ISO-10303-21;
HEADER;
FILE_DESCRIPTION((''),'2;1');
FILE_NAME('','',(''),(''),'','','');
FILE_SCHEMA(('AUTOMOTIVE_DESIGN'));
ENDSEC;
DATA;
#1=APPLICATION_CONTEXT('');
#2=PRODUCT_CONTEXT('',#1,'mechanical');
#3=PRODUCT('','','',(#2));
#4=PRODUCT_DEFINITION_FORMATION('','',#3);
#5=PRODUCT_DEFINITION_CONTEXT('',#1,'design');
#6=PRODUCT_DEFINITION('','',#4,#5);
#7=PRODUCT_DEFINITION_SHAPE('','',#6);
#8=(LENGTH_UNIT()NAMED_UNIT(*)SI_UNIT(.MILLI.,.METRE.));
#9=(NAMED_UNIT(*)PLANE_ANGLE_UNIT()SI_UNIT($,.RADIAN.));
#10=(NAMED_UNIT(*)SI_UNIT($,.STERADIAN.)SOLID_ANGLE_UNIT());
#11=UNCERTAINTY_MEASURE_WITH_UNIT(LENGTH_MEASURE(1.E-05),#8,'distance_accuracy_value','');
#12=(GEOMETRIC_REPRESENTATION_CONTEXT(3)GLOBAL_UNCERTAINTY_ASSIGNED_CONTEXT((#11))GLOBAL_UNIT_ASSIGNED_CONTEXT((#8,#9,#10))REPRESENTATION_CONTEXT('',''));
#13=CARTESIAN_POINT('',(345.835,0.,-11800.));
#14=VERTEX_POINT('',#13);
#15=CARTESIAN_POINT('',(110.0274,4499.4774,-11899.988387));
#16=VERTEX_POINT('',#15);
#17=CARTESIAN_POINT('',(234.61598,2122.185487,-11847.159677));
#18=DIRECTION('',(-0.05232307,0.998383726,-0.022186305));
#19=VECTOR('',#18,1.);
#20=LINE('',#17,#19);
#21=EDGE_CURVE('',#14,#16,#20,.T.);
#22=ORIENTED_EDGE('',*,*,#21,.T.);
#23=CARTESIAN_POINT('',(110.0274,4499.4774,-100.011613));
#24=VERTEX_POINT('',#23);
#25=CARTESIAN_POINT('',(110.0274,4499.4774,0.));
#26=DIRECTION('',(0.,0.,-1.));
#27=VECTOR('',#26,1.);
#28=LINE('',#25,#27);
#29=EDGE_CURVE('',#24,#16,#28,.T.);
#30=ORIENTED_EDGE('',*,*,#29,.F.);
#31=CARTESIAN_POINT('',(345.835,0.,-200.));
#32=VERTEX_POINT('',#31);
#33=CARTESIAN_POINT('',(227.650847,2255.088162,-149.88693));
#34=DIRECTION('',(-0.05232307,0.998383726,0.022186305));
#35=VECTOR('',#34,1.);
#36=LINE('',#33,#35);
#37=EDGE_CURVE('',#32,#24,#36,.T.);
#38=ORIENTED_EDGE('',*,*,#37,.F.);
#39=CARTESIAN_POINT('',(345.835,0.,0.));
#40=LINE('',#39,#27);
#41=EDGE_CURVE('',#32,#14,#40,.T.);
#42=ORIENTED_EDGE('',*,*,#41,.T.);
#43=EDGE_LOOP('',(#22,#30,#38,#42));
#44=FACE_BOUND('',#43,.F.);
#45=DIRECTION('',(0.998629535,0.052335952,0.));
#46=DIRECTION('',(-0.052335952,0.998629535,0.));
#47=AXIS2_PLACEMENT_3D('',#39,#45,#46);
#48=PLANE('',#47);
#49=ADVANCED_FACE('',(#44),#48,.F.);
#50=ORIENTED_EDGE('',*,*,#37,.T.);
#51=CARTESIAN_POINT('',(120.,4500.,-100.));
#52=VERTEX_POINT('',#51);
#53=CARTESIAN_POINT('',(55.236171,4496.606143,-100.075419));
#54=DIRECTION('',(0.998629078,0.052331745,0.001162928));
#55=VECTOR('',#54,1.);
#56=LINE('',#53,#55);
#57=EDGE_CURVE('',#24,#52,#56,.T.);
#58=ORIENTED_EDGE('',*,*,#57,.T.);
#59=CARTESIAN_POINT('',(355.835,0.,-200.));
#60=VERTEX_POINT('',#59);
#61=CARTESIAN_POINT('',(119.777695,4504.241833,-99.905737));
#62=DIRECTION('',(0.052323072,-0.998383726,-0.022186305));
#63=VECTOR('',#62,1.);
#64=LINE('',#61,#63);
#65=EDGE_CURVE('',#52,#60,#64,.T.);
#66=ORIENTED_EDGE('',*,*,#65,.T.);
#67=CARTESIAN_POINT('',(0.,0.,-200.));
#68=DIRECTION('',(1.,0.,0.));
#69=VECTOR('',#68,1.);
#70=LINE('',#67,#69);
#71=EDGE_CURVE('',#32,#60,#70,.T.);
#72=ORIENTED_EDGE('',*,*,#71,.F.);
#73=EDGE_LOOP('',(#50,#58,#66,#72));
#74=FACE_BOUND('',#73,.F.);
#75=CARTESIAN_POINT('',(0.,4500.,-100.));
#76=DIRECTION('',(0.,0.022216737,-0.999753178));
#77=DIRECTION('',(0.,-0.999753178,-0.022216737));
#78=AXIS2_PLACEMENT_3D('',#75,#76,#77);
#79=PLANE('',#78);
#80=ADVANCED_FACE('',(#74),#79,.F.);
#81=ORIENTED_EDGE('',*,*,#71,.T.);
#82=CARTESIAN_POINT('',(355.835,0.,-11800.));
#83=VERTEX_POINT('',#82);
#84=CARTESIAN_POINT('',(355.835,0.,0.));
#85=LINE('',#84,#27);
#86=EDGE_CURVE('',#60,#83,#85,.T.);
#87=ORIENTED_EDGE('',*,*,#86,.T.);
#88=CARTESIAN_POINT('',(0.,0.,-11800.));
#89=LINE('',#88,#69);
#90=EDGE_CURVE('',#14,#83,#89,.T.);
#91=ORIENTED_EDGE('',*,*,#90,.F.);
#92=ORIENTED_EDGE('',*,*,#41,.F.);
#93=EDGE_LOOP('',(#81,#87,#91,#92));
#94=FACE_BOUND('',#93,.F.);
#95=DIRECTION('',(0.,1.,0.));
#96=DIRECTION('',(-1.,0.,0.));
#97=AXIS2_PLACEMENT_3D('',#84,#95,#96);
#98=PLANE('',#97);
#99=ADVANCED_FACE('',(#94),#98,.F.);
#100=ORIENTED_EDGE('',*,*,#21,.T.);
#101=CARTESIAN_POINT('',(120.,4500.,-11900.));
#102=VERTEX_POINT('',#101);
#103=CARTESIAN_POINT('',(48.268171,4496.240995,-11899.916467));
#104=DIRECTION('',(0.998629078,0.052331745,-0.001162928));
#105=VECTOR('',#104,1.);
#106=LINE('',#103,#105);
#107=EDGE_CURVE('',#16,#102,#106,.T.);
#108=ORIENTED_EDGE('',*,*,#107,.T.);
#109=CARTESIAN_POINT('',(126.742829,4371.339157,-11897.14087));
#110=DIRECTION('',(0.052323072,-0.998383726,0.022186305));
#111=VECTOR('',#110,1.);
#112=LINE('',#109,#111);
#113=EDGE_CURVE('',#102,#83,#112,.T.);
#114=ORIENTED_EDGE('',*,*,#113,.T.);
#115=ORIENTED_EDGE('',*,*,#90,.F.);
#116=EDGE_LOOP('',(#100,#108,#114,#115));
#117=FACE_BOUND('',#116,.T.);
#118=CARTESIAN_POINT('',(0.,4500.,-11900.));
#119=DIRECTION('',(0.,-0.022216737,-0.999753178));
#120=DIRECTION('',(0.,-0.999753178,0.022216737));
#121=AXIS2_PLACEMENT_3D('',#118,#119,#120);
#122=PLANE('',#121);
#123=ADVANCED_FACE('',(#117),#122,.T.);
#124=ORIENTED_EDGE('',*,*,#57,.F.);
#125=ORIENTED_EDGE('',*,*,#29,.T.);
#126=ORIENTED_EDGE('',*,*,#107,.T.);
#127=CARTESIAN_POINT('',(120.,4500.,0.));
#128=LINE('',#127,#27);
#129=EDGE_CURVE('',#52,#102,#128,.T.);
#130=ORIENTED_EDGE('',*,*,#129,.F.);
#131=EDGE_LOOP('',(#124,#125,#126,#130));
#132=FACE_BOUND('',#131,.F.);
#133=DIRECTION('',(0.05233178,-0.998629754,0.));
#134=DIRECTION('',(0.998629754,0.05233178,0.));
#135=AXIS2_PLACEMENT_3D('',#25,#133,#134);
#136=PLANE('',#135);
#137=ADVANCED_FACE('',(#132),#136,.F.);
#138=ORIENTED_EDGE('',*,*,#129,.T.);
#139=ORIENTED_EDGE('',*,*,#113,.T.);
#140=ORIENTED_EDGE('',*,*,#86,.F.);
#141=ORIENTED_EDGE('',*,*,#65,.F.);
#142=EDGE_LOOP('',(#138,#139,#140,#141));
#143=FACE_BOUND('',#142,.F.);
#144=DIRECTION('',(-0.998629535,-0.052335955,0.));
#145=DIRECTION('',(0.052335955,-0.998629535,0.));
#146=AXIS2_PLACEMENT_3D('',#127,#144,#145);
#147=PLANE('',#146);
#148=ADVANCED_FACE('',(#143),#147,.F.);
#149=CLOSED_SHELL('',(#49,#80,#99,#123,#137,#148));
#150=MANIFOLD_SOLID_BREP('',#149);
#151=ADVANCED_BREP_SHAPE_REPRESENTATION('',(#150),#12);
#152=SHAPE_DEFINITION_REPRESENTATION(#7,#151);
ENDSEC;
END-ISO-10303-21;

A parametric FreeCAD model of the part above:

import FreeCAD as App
import Part
import Sketcher
from FreeCAD import Vector
Q = App.Units.Quantity

doc = App.newDocument("Part")
body = doc.addObject("PartDesign::Body", "Body")

# Sketch on XY plane
sketch1 = body.newObject("Sketcher::SketchObject", "Sketch")
sketch1.AttachmentSupport = (doc.getObject("XY_Plane"), [""])
sketch1.MapMode = "FlatFace"
sketch1.addGeometry(Part.LineSegment(Vector(346, 0, 0), Vector(356, 0, 0)), False)
sketch1.addGeometry(Part.LineSegment(Vector(356, 0, 0), Vector(120, 4500, 0)), False)
sketch1.addGeometry(Part.LineSegment(Vector(120, 4500, 0), Vector(110, 4499, 0)), False)
sketch1.addGeometry(Part.LineSegment(Vector(110, 4499, 0), Vector(346, 0, 0)), False)
sketch1.addConstraint(Sketcher.Constraint("Coincident", 0, 2, 1, 1))
sketch1.addConstraint(Sketcher.Constraint("Coincident", 1, 2, 2, 1))
sketch1.addConstraint(Sketcher.Constraint("Coincident", 2, 2, 3, 1))
sketch1.addConstraint(Sketcher.Constraint("Coincident", 3, 2, 0, 1))
sketch1.addConstraint(Sketcher.Constraint("Horizontal", 0))
sketch1.addConstraint(Sketcher.Constraint("PointOnObject", 0, 2, -1))
sketch1.addConstraint(Sketcher.Constraint("Perpendicular", 1, 2))
sketch1.addConstraint(Sketcher.Constraint("Perpendicular", 2, 3))
sketch1.addConstraint(Sketcher.Constraint("DistanceX", 0, 1, 0, 2, 10.0))
sketch1.addConstraint(Sketcher.Constraint("Angle", 3, Q("-87 deg")))
sketch1.addConstraint(Sketcher.Constraint("DistanceX", -1, 1, 1, 2, 120.0))
sketch1.addConstraint(Sketcher.Constraint("DistanceY", -1, 1, 1, 2, 4500.0))
pad1 = body.newObject("PartDesign::Pad", "Pad")
pad1.Profile = sketch1
pad1.Length = 12000
pad1.Reversed = True

# Sketch on YZ plane
sketch2 = body.newObject("Sketcher::SketchObject", "Sketch001")
sketch2.AttachmentSupport = (doc.getObject("YZ_Plane"), [""])
sketch2.MapMode = "FlatFace"
sketch2.addGeometry(Part.LineSegment(Vector(4500, 0, 0), Vector(0, 0, 0)), False)
sketch2.addGeometry(Part.LineSegment(Vector(0, 0, 0), Vector(0, -200, 0)), False)
sketch2.addGeometry(Part.LineSegment(Vector(0, -200, 0), Vector(4500, -100, 0)), False)
sketch2.addGeometry(Part.LineSegment(Vector(4500, -100, 0), Vector(4500, 0, 0)), False)
sketch2.addGeometry(Part.LineSegment(Vector(4500, -11900, 0), Vector(0, -11800, 0)), False)
sketch2.addGeometry(Part.LineSegment(Vector(0, -11800, 0), Vector(0, -12000, 0)), False)
sketch2.addGeometry(Part.LineSegment(Vector(0, -12000, 0), Vector(4500, -12000, 0)), False)
sketch2.addGeometry(Part.LineSegment(Vector(4500, -12000, 0), Vector(4500, -11900, 0)), False)
sketch2.addConstraint(Sketcher.Constraint("Coincident", 0, 2, 1, 1))
sketch2.addConstraint(Sketcher.Constraint("Coincident", 1, 2, 2, 1))
sketch2.addConstraint(Sketcher.Constraint("Coincident", 2, 2, 3, 1))
sketch2.addConstraint(Sketcher.Constraint("Coincident", 3, 2, 0, 1))
sketch2.addConstraint(Sketcher.Constraint("Coincident", 4, 2, 5, 1))
sketch2.addConstraint(Sketcher.Constraint("Coincident", 5, 2, 6, 1))
sketch2.addConstraint(Sketcher.Constraint("Coincident", 6, 2, 7, 1))
sketch2.addConstraint(Sketcher.Constraint("Coincident", 7, 2, 4, 1))
sketch2.addConstraint(Sketcher.Constraint("Horizontal", 0))
sketch2.addConstraint(Sketcher.Constraint("Vertical", 1))
sketch2.addConstraint(Sketcher.Constraint("Vertical", 3))
sketch2.addConstraint(Sketcher.Constraint("Vertical", 5))
sketch2.addConstraint(Sketcher.Constraint("Horizontal", 6))
sketch2.addConstraint(Sketcher.Constraint("Vertical", 7))
sketch2.addConstraint(Sketcher.Constraint("Coincident", 0, 2, -1, 1))
sketch2.addConstraint(Sketcher.Constraint("PointOnObject", 4, 2, -2))
sketch2.addConstraint(Sketcher.Constraint("Vertical", 3, 2, 6, 2))
sketch2.addConstraint(Sketcher.Constraint("Equal", 1, 5))
sketch2.addConstraint(Sketcher.Constraint("Equal", 3, 7))
sketch2.addConstraint(Sketcher.Constraint("DistanceY", 1, 2, 1, 1, 200.0))
sketch2.addConstraint(Sketcher.Constraint("DistanceY", 3, 1, 3, 2, 100.0))
sketch2.addConstraint(Sketcher.Constraint("DistanceX", 0, 2, 0, 1, 4500.0))
sketch2.addConstraint(Sketcher.Constraint("DistanceY", 4, 2, -1, 1, 11800.0))
pocket1 = body.newObject("PartDesign::Pocket", "Pocket")
pocket1.Profile = sketch2
pocket1.Type = "ThroughAll"
pocket1.Reversed = True

doc.recompute()
